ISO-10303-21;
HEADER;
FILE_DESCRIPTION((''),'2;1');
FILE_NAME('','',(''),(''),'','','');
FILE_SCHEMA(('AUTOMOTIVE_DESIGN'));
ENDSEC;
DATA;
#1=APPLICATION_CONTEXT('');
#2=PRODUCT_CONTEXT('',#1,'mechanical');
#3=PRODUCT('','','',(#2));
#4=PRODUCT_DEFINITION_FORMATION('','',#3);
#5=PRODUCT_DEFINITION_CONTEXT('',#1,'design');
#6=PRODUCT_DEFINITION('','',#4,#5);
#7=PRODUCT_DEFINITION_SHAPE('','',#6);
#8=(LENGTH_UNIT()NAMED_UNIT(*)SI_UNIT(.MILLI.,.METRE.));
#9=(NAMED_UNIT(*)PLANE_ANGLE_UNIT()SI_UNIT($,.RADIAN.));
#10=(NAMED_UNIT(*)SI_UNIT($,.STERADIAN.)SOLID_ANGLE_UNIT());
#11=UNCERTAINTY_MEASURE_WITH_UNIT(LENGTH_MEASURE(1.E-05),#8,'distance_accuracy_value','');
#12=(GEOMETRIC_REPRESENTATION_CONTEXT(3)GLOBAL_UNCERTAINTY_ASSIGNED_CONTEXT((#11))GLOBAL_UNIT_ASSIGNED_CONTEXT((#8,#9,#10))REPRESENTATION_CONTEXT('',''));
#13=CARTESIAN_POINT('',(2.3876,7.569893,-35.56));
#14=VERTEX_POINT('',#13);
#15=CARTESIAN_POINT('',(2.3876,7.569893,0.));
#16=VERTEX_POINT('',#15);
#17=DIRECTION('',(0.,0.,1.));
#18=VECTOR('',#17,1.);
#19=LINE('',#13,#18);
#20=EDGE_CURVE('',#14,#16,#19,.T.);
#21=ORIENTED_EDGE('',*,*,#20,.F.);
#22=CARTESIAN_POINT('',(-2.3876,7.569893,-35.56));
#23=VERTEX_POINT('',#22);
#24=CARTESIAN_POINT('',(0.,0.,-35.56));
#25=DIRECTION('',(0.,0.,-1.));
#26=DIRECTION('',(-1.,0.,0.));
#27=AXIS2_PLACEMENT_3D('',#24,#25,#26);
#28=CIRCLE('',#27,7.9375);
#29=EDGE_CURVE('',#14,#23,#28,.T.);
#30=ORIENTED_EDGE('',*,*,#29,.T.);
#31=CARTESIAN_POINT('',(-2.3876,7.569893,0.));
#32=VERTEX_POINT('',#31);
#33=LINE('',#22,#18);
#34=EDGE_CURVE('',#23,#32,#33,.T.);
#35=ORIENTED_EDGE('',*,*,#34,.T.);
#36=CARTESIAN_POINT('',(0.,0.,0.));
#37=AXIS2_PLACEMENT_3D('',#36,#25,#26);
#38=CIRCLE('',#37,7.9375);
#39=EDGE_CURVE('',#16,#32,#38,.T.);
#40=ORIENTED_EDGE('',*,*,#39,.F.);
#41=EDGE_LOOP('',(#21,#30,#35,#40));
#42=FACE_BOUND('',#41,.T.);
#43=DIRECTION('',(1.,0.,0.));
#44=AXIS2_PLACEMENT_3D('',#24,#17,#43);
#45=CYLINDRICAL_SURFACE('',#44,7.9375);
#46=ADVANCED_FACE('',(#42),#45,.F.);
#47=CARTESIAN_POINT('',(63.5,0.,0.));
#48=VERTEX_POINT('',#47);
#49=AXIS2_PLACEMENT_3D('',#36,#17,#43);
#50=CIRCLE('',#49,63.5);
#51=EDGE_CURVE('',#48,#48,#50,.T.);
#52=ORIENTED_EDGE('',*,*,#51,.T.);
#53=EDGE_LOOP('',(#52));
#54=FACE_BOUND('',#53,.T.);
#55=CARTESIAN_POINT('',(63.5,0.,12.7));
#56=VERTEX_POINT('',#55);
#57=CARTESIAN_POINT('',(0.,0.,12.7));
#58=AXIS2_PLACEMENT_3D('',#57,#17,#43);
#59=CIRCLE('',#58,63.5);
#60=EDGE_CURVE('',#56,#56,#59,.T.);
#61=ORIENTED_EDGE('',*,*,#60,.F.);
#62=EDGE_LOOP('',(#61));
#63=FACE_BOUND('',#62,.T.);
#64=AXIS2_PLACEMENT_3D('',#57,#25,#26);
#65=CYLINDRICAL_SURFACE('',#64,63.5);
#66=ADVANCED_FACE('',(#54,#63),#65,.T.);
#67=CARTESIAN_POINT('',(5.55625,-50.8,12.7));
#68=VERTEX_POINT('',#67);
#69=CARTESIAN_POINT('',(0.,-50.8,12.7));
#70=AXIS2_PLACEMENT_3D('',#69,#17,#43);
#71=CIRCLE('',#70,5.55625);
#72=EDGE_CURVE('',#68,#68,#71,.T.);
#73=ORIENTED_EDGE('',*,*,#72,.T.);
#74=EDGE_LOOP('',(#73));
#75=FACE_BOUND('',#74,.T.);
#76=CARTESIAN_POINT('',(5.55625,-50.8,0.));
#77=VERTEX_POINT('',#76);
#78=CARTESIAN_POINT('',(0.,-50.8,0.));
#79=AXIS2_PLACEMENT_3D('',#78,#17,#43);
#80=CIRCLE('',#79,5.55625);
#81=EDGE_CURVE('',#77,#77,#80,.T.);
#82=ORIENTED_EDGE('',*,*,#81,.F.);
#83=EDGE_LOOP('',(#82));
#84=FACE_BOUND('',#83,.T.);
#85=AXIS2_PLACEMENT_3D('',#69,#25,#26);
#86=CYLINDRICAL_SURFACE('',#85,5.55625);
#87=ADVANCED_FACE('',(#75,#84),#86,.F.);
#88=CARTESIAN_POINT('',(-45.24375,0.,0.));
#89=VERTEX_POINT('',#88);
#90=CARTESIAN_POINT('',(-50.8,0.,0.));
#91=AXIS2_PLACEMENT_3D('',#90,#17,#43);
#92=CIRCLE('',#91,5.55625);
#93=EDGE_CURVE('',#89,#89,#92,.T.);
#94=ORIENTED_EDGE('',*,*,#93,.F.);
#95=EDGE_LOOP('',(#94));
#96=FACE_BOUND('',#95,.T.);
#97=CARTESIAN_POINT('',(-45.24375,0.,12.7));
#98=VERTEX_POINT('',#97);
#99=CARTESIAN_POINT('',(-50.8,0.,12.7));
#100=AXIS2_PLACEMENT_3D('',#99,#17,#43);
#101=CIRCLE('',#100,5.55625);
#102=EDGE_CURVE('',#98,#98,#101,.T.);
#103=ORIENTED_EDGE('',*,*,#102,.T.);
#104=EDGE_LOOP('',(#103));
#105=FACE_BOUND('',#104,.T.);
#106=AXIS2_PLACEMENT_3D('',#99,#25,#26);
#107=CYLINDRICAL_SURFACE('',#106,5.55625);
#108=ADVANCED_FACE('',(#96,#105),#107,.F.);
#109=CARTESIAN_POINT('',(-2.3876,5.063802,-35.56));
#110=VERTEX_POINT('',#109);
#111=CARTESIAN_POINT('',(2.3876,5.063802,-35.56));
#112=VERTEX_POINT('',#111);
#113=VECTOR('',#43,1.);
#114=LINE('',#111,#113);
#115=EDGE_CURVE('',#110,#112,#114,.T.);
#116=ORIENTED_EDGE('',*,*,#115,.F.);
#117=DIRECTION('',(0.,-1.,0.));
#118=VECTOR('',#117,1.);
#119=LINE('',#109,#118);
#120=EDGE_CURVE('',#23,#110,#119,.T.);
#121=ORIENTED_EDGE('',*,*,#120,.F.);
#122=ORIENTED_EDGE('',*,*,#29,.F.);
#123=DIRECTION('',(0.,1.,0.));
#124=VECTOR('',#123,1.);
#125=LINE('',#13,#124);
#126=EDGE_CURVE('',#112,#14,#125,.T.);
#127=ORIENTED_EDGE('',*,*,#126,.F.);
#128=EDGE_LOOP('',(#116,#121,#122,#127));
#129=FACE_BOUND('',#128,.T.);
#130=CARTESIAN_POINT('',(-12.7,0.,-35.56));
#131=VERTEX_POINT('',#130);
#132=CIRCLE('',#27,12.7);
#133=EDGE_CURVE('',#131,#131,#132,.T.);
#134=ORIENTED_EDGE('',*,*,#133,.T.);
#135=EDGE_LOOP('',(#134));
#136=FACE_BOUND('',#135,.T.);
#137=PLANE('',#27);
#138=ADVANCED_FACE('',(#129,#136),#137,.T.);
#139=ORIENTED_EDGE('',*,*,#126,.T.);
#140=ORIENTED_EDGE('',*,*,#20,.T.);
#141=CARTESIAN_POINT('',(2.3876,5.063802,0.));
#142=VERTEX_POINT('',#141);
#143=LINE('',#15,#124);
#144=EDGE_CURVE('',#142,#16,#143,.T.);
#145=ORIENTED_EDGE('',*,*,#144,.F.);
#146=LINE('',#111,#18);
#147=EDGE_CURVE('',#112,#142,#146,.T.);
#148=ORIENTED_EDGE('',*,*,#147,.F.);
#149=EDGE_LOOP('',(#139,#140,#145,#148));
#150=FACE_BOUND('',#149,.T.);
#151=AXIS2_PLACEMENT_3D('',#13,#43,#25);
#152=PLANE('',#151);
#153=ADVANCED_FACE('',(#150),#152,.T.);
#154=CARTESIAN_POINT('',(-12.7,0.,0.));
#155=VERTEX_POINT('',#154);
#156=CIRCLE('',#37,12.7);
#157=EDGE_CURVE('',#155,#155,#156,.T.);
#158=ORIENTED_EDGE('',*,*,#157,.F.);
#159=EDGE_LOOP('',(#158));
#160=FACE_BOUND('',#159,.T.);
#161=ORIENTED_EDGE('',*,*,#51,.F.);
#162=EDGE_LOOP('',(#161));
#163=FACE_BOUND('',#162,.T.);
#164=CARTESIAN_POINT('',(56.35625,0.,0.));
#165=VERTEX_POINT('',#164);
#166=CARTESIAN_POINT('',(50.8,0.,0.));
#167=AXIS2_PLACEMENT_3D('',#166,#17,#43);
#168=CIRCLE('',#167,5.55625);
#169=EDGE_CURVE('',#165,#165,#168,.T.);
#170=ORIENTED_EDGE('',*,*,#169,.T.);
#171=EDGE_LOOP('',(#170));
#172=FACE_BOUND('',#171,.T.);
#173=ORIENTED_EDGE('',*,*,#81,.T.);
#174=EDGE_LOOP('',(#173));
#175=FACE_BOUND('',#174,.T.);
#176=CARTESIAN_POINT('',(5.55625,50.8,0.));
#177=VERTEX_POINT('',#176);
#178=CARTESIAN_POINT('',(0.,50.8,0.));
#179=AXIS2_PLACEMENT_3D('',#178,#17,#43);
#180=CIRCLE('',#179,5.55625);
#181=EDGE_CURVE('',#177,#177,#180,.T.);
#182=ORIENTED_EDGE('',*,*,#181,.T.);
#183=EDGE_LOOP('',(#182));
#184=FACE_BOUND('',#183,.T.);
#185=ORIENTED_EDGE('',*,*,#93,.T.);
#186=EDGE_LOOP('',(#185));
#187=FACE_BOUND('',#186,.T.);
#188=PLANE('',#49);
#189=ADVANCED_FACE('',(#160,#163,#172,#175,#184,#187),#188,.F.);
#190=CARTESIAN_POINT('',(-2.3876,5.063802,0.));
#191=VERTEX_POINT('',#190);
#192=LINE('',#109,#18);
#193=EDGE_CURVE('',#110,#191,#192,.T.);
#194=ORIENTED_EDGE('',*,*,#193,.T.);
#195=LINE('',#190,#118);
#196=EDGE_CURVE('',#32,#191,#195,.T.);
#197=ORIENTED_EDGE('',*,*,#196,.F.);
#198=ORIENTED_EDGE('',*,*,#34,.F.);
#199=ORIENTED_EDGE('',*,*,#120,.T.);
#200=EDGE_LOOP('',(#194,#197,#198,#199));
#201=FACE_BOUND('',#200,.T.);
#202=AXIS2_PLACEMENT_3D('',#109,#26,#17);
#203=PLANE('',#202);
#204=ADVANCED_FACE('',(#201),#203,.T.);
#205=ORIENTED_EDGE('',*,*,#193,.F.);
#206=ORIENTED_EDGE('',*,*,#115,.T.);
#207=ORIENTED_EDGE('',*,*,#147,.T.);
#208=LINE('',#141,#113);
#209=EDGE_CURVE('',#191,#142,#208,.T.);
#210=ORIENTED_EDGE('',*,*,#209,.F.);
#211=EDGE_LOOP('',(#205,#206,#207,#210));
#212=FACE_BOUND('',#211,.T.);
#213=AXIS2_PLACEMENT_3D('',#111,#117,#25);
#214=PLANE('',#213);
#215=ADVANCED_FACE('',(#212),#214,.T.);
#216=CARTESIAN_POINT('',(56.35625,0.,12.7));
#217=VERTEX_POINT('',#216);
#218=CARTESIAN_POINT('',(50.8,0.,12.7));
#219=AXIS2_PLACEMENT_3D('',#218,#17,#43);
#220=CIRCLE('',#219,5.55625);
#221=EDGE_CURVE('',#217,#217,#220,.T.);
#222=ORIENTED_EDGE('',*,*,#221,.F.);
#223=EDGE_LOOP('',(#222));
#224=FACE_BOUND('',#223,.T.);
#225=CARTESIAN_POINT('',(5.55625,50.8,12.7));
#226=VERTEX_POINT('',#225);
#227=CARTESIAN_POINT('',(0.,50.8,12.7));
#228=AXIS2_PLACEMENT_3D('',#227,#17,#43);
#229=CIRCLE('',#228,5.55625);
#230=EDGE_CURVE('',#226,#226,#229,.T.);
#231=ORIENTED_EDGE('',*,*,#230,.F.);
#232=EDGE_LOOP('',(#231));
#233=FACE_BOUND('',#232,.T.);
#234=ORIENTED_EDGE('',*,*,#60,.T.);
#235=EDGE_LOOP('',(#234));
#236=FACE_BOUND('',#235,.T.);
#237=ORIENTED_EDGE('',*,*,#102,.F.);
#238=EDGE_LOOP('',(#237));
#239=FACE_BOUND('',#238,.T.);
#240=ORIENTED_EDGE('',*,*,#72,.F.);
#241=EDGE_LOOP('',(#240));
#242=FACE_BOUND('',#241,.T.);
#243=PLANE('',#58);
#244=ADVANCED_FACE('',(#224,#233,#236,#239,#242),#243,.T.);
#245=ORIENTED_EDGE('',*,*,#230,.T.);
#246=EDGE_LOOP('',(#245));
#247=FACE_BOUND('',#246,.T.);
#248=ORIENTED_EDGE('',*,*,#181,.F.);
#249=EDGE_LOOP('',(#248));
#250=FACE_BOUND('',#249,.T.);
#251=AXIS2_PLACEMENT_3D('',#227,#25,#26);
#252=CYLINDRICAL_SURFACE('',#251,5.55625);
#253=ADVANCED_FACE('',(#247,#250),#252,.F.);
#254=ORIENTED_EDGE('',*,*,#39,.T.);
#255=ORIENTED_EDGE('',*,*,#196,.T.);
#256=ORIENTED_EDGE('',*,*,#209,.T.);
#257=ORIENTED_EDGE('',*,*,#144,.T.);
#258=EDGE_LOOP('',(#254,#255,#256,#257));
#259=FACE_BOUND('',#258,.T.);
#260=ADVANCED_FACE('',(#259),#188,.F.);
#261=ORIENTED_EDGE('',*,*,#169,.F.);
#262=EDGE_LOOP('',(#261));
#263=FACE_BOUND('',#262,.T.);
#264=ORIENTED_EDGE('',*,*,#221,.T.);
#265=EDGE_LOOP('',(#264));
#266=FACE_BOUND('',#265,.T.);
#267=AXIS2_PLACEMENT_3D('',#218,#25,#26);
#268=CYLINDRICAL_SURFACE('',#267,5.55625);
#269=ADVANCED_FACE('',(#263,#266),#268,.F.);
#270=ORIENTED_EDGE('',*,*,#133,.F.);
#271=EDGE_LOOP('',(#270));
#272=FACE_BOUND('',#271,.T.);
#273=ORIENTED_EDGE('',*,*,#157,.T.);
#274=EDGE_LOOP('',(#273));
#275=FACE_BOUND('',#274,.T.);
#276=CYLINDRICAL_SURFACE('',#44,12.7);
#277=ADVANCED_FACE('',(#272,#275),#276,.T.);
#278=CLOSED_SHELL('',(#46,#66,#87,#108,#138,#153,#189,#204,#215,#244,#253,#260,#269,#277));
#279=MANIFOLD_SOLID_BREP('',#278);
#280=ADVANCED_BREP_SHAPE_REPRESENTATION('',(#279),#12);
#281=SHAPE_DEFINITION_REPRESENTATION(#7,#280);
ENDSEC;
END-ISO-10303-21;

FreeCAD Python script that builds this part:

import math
import FreeCAD as App
import Part
import Sketcher
from FreeCAD import Vector
Q = App.Units.Quantity

doc = App.newDocument("Part")
body = doc.addObject("PartDesign::Body", "Body")

sketch1 = doc.addObject("Sketcher::SketchObject", "Sketch")
body.addObject(sketch1)
sketch1.AttachmentSupport = (doc.XY_Plane, [""])
sketch1.MapMode = "FlatFace"
sketch1.addGeometry([
    Part.Circle(Vector(0, 0, 0), Vector(0, 0, 1), 64),
    Part.Circle(Vector(0, -51, 0), Vector(0, 0, 1), 6),
    Part.Circle(Vector(-51, 0, 0), Vector(0, 0, 1), 6),
    Part.Circle(Vector(51, 0, 0), Vector(0, 0, 1), 6),
    Part.Circle(Vector(0, 51, 0), Vector(0, 0, 1), 6),
], False)
sketch1.addConstraint([
    Sketcher.Constraint("Coincident", 0, 3, -1, 1),
    Sketcher.Constraint("Equal", 1, 2),
    Sketcher.Constraint("Equal", 2, 3),
    Sketcher.Constraint("Equal", 3, 4),
    Sketcher.Constraint("Symmetric", 2, 3, 3, 3, -1, 1),
    Sketcher.Constraint("Symmetric", 1, 3, 4, 3, -1, 1),
    Sketcher.Constraint("PointOnObject", 1, 3, -2),
    Sketcher.Constraint("PointOnObject", 2, 3, -1),
    Sketcher.Constraint("Diameter", 0, Q("5 in")),
    Sketcher.Constraint("Diameter", 1, Q("0.4375 in")),
    Sketcher.Constraint("DistanceY", 1, 3, -1, 1, Q("2 in")),
    Sketcher.Constraint("DistanceX", 2, 3, -1, 1, Q("2 in")),
])
pad1 = doc.addObject("PartDesign::Pad", "Pad")
body.addObject(pad1)
pad1.Profile = sketch1
pad1.Length = Q("0.5 in")

sketch2 = doc.addObject("Sketcher::SketchObject", "Sketch001")
body.addObject(sketch2)
sketch2.AttachmentSupport = (doc.XY_Plane, [""])
sketch2.MapMode = "FlatFace"
sketch2.addGeometry([
    Part.Circle(Vector(0, 0, 0), Vector(0, 0, 1), 12.7),
    Part.ArcOfCircle(Part.Circle(Vector(0, 0, 0), Vector(0, 0, 1), 7.9), math.radians(108), math.radians(432)),
    Part.LineSegment(Vector(2.4, 7.6, 0), Vector(2.4, 5.1, 0)),
    Part.LineSegment(Vector(2.4, 5.1, 0), Vector(-2.4, 5.1, 0)),
    Part.LineSegment(Vector(-2.4, 5.1, 0), Vector(-2.4, 7.6, 0)),
], False)
sketch2.addConstraint([
    Sketcher.Constraint("Coincident", 1, 2, 2, 1),
    Sketcher.Constraint("Coincident", 2, 2, 3, 1),
    Sketcher.Constraint("Coincident", 3, 2, 4, 1),
    Sketcher.Constraint("Coincident", 4, 2, 1, 1),
    Sketcher.Constraint("Vertical", 2),
    Sketcher.Constraint("Horizontal", 3),
    Sketcher.Constraint("Vertical", 4),
    Sketcher.Constraint("Coincident", 0, 3, -1, 1),
    Sketcher.Constraint("Coincident", 1, 3, -1, 1),
    Sketcher.Constraint("Horizontal", 1, 2, 4, 2),
    Sketcher.Constraint("Diameter", 0, Q("1 in")),
    Sketcher.Constraint("Radius", 1, Q("0.3125 in")),
    Sketcher.Constraint("DistanceX", 3, 2, 3, 1, Q("0.188 in")),
    Sketcher.Constraint("DistanceY", 2, 2, 2, 1, 2.506091),
])
pad2 = doc.addObject("PartDesign::Pad", "Pad001")
body.addObject(pad2)
pad2.Profile = sketch2
pad2.Length = Q("1.4 in")
pad2.Reversed = True

doc.recompute()
